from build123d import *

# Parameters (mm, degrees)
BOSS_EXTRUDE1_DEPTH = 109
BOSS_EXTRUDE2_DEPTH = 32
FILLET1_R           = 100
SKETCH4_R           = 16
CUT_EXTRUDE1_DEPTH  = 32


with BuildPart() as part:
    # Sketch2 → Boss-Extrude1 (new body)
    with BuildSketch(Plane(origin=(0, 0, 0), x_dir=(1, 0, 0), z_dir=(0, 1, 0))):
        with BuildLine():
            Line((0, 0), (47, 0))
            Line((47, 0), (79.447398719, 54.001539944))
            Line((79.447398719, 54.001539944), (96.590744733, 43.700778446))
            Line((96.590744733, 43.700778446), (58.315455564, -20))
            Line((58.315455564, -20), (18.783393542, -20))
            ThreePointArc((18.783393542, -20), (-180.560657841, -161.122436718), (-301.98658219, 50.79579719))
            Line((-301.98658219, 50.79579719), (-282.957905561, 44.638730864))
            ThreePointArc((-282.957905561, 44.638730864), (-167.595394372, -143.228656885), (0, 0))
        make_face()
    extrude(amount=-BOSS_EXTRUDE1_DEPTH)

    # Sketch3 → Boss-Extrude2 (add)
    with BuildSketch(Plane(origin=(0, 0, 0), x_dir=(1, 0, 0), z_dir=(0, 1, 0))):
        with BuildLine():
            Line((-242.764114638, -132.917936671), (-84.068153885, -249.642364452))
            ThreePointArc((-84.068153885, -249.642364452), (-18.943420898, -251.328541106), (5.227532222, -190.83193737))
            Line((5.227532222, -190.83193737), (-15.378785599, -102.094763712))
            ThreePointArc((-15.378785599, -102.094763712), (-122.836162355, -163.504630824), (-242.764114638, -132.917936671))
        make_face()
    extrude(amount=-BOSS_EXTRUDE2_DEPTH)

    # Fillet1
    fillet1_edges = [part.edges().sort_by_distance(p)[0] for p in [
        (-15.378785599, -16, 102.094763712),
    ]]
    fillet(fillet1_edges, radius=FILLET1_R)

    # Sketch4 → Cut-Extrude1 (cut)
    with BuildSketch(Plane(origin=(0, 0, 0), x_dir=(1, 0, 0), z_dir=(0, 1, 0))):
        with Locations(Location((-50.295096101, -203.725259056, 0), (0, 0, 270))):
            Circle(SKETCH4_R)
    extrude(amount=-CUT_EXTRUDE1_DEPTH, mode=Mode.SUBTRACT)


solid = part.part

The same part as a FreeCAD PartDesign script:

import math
import FreeCAD as App
import Part
import Sketcher

V = App.Vector
Q = App.Units.Quantity


def edges_at(feature, points):
    """Names of the edges that pass closest to the given points."""
    edges = feature.Shape.Edges
    near = lambda p: min(range(len(edges)), key=lambda i: edges[i].distToShape(Part.Vertex(*p))[0])
    return sorted({f"Edge{near(p) + 1}" for p in points})

doc = App.newDocument("Part")
body = doc.addObject("PartDesign::Body", "Body")

# Sketch on XZ plane
sketch1 = body.newObject("Sketcher::SketchObject", "Sketch")
sketch1.AttachmentSupport = (doc.getObject("XZ_Plane"), [""])
sketch1.MapMode = "FlatFace"
sketch1.addGeometry([
    Part.LineSegment(V(47, 0, 0), V(0, 0, 0)),  # 0
    Part.ArcOfCircle(Part.Circle(V(-145, 0, 0), V(0, 0, 1), 145), math.radians(0), math.radians(197.929909)),  # 1
    Part.LineSegment(V(-282.957906, -44.638731, 0), V(-301.986582, -50.795797, 0)),  # 2
    Part.ArcOfCircle(Part.Circle(V(-145, 0, 0), V(0, 0, 1), 165), math.radians(6.962063), math.radians(197.929909)),  # 3
    Part.LineSegment(V(18.783394, 20, 0), V(58.315456, 20, 0)),  # 4
    Part.LineSegment(V(58.315456, 20, 0), V(96.590745, -43.700778, 0)),  # 5
    Part.LineSegment(V(96.590745, -43.700778, 0), V(79.447399, -54.00154, 0)),  # 6
    Part.LineSegment(V(79.447399, -54.00154, 0), V(47, 0, 0)),  # 7
], False)
sketch1.addConstraint([
    Sketcher.Constraint("Coincident", 0, 2, 1, 1),
    Sketcher.Constraint("Coincident", 1, 2, 2, 1),
    Sketcher.Constraint("Coincident", 2, 2, 3, 2),
    Sketcher.Constraint("Coincident", 3, 1, 4, 1),
    Sketcher.Constraint("Coincident", 4, 2, 5, 1),
    Sketcher.Constraint("Coincident", 5, 2, 6, 1),
    Sketcher.Constraint("Coincident", 6, 2, 7, 1),
    Sketcher.Constraint("Coincident", 7, 2, 0, 1),
    Sketcher.Constraint("Horizontal", 0),
    Sketcher.Constraint("Horizontal", 4),
    Sketcher.Constraint("Coincident", 0, 2, -1, 1),
    Sketcher.Constraint("Coincident", 3, 3, 1, 3),
    Sketcher.Constraint("PointOnObject", 1, 3, -1),
    Sketcher.Constraint("Perpendicular", 5, 6),
    Sketcher.Constraint("Perpendicular", 6, 7),
    Sketcher.Constraint("Equal", 2, 6),
    Sketcher.Constraint("Radius", 1, 145.0),
    Sketcher.Constraint("Radius", 3, 165.0),
    Sketcher.Constraint("DistanceX", 0, 2, 0, 1, 47.0),
    Sketcher.Constraint("Angle", 5, Q("-59 deg")),
    Sketcher.Constraint("Distance", 7, 63.0),
    Sketcher.Constraint("DistanceY", -1, 1, 3, 1, 20.0),
    Sketcher.Constraint("DistanceX", 1, 2, 3, 1, 301.741299),
    Sketcher.Constraint("DistanceX", 2, 2, -1, 1, 301.986582),
])
pad1 = body.newObject("PartDesign::Pad", "Pad")
pad1.Profile = sketch1
pad1.Length = 109

# Sketch on XZ plane
sketch2 = body.newObject("Sketcher::SketchObject", "Sketch001")
sketch2.AttachmentSupport = (doc.getObject("XZ_Plane"), [""])
sketch2.MapMode = "FlatFace"
sketch2.addGeometry([
    Part.LineSegment(V(-242.764115, 132.917937, 0), V(-84.068154, 249.642364, 0)),
    Part.ArcOfCircle(Part.Circle(V(-50.295096, 203.725259, 0), V(0, 0, 1), 57), math.radians(-13.073372), math.radians(126.335313)),
    Part.LineSegment(V(5.227532, 190.831937, 0), V(-15.378786, 102.094764, 0)),
    Part.ArcOfCircle(Part.Circle(V(-145, 0, 0), V(0, 0, 1), 165), math.radians(38.225358), math.radians(126.335313)),
], False)
sketch2.addConstraint([
    Sketcher.Constraint("Tangent", 0, 2, 1, 2),
    Sketcher.Constraint("Tangent", 1, 1, 2, 1),
    Sketcher.Constraint("Coincident", 2, 2, 3, 1),
    Sketcher.Constraint("Tangent", 3, 2, 0, 1),
    Sketcher.Constraint("PointOnObject", 3, 3, -1),
    Sketcher.Constraint("Radius", 1, 57.0),
    Sketcher.Constraint("Radius", 3, 165.0),
    Sketcher.Constraint("Distance", 0, 197.0),
    Sketcher.Constraint("DistanceX", 3, 3, -1, 1, 145.0),
    Sketcher.Constraint("DistanceY", 3, 2, 1, 1, 57.914001),
    Sketcher.Constraint("DistanceY", 2, 2, 0, 2, 147.547601),
])
pad2 = body.newObject("PartDesign::Pad", "Pad001")
pad2.Profile = sketch2
pad2.Length = 32
doc.recompute()

fillet = body.newObject("PartDesign::Fillet", "Fillet")
fillet.Base = (pad2, edges_at(pad2, [(-15.379, -16, 102.095)]))
fillet.Radius = 100

# Sketch on XZ plane
sketch3 = body.newObject("Sketcher::SketchObject", "Sketch002")
sketch3.AttachmentSupport = (doc.getObject("XZ_Plane"), [""])
sketch3.MapMode = "FlatFace"
sketch3.addGeometry(Part.Circle(V(-50.295096, 203.725259, 0), V(0, 0, 1), 16), False)
sketch3.addConstraint([
    Sketcher.Constraint("Diameter", 0, 32.0),
    Sketcher.Constraint("DistanceY", -1, 1, 0, 3, 203.725259),
    Sketcher.Constraint("DistanceX", 0, 3, -1, 1, 50.295096),
])
pocket1 = body.newObject("PartDesign::Pocket", "Pocket")
pocket1.Profile = sketch3
pocket1.Length = 32
pocket1.Reversed = True

doc.recompute()
